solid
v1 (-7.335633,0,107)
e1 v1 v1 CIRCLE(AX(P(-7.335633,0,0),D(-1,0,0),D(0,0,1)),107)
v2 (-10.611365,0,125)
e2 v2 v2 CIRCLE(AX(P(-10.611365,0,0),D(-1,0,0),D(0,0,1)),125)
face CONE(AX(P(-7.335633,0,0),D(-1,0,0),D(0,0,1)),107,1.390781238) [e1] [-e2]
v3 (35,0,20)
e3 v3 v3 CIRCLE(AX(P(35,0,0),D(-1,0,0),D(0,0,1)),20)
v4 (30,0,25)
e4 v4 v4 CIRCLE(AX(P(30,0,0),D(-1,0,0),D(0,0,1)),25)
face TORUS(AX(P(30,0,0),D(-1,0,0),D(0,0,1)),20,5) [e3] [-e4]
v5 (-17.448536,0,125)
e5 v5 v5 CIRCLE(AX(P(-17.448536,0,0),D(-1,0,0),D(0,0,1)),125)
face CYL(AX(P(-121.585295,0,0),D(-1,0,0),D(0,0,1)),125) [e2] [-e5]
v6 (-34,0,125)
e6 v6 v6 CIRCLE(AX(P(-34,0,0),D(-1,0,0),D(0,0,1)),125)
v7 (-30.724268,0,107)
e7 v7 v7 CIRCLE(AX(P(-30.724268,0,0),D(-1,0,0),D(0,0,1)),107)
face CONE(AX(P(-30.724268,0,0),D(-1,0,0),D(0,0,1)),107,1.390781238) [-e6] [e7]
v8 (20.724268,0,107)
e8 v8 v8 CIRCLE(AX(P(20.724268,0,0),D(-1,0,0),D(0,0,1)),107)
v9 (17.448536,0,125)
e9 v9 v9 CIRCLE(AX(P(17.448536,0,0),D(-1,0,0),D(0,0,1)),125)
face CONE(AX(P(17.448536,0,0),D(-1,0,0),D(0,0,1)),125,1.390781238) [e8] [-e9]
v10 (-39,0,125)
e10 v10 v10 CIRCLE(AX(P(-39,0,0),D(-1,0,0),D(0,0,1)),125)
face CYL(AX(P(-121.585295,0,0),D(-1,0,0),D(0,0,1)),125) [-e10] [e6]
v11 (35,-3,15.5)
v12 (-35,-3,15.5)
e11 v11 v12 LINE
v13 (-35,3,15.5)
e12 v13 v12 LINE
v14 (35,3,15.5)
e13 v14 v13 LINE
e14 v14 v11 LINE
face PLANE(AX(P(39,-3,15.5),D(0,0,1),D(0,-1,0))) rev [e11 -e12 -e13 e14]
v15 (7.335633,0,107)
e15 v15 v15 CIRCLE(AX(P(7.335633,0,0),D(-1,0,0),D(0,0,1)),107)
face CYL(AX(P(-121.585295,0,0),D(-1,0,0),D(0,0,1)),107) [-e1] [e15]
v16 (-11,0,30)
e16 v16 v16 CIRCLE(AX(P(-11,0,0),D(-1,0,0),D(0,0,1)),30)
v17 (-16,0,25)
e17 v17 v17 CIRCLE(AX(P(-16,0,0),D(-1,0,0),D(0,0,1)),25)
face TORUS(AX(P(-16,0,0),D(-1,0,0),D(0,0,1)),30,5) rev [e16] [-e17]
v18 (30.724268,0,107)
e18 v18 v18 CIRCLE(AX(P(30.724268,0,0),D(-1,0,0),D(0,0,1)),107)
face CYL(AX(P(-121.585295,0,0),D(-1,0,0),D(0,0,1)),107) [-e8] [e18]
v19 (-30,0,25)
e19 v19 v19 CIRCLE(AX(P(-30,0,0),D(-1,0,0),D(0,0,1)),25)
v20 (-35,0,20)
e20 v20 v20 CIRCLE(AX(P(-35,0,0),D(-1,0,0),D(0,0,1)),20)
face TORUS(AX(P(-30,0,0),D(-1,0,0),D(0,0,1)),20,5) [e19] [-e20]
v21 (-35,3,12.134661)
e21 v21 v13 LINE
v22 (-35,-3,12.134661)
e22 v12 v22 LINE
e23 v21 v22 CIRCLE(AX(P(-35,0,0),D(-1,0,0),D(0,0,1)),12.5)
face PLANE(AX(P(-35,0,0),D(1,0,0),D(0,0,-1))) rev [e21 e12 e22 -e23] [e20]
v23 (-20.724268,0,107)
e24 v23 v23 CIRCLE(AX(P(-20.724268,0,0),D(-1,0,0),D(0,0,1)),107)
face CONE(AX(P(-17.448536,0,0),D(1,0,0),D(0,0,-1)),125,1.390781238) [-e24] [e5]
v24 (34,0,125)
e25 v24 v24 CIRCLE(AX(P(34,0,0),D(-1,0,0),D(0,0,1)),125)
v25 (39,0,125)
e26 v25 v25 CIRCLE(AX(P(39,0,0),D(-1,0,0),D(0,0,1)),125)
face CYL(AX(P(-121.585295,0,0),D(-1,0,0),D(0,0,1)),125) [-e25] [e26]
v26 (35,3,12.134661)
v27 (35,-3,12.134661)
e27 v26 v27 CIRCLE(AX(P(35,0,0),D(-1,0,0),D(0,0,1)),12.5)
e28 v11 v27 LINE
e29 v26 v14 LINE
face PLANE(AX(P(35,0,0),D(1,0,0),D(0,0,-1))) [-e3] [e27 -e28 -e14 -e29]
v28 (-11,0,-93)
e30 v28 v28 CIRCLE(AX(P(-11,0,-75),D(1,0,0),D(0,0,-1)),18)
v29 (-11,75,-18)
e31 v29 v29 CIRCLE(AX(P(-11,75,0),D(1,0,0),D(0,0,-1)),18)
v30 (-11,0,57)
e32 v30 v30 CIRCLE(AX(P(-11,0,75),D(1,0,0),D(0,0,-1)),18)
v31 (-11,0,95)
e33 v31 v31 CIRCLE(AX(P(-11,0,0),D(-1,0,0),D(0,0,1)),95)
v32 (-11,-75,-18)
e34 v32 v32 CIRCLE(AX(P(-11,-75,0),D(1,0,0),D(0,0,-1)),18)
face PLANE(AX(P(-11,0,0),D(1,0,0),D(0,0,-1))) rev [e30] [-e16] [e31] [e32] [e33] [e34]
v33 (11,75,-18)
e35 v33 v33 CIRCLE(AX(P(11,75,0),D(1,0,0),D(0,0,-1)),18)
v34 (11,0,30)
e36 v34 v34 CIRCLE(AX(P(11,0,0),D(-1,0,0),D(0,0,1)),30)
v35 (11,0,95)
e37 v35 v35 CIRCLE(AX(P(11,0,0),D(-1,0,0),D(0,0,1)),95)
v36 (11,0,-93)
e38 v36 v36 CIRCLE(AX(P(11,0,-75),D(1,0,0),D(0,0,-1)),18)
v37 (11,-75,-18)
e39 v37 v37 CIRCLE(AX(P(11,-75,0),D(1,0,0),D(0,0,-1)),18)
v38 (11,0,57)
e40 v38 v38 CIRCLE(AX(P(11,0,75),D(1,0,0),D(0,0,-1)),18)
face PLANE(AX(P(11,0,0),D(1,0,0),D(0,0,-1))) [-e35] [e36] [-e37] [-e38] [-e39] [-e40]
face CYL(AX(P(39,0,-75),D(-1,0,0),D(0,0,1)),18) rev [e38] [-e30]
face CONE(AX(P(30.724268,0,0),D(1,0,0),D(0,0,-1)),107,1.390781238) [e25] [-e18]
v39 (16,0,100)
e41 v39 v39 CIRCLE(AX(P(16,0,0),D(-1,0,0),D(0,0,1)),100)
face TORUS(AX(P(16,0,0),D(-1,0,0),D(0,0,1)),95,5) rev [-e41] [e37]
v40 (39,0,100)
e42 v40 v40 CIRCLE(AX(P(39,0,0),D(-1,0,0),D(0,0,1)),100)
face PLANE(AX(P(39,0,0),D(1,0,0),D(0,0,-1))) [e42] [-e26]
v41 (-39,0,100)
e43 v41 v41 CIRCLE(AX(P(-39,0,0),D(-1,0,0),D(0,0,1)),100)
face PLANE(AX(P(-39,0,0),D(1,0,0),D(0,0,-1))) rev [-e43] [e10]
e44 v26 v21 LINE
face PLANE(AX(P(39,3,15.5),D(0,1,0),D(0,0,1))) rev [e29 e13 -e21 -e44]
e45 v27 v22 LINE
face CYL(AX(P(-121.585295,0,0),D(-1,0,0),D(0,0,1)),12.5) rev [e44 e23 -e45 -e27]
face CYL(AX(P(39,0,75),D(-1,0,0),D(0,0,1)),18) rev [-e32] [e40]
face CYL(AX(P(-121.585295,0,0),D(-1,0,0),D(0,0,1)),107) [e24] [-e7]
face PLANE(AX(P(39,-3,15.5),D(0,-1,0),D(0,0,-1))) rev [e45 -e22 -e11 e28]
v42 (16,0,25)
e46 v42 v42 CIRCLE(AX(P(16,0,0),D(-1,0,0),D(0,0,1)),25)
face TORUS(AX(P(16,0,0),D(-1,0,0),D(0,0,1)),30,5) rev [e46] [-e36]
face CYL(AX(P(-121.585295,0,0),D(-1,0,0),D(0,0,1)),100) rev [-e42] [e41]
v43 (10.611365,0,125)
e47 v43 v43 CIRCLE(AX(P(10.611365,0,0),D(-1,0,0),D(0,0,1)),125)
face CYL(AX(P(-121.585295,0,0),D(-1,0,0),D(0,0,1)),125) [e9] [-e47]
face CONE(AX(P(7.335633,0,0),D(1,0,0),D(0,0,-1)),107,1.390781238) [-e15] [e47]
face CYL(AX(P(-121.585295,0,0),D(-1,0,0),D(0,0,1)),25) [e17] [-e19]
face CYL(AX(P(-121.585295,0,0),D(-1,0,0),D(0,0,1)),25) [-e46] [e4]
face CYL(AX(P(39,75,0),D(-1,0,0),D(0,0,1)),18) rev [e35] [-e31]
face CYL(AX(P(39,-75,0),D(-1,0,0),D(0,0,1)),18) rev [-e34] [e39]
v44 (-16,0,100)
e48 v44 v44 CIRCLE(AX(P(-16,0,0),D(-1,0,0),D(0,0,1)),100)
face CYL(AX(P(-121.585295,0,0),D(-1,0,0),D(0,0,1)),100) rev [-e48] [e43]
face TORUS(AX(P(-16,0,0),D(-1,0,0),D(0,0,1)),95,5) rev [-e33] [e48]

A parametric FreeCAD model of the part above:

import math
import FreeCAD as App
import Part
import Sketcher
from FreeCAD import Vector

doc = App.newDocument("Part")
params = doc.addObject("Spreadsheet::Sheet", "Params")
for row, (alias, value) in enumerate([
    ("sketch1_radius", "5 mm"),
    ("sketch1_width", "10 mm"),
    ("sketch1_width2", "5 mm"),
    ("sketch1_width3", "23 mm"),
    ("sketch1_width4", "14 mm"),
    ("revolution_angle", "360 deg"),
    ("sketch2_diameter", "36 mm"),
    ("sketch2_radius", "12.5 mm"),
    ("sketch2_width", "6 mm"),
], start=1):
    params.set(f"A{row}", alias)
    params.set(f"B{row}", "=" + value)
    params.setAlias(f"B{row}", alias)

body = doc.addObject("PartDesign::Body", "Body")

sketch1 = body.newObject("Sketcher::SketchObject", "Sketch")
sketch1.AttachmentSupport = (doc.getObject("XY_Plane"), [""])
sketch1.MapMode = "FlatFace"
sketch1.addGeometry(Part.LineSegment(Vector(-11, 125, 0), Vector(-17, 125, 0)), False)
sketch1.addGeometry(Part.LineSegment(Vector(-17, 125, 0), Vector(-21, 107, 0)), False)
sketch1.addGeometry(Part.LineSegment(Vector(-21, 107, 0), Vector(-31, 107, 0)), False)
sketch1.addGeometry(Part.LineSegment(Vector(-31, 107, 0), Vector(-34, 125, 0)), False)
sketch1.addGeometry(Part.LineSegment(Vector(-34, 125, 0), Vector(-39, 125, 0)), False)
sketch1.addGeometry(Part.LineSegment(Vector(-39, 125, 0), Vector(-39, 100, 0)), False)
sketch1.addGeometry(Part.LineSegment(Vector(-39, 100, 0), Vector(-16, 100, 0)), False)
sketch1.addGeometry(Part.ArcOfCircle(Part.Circle(Vector(-16, 95, 0), Vector(0, 0, 1), 5), math.radians(0), math.radians(90)), False)
sketch1.addGeometry(Part.LineSegment(Vector(-11, 95, 0), Vector(-11, 30, 0)), False)
sketch1.addGeometry(Part.ArcOfCircle(Part.Circle(Vector(-16, 30, 0), Vector(0, 0, 1), 5), math.radians(-90), math.radians(0)), False)
sketch1.addGeometry(Part.LineSegment(Vector(-16, 25, 0), Vector(-30, 25, 0)), False)
sketch1.addGeometry(Part.ArcOfCircle(Part.Circle(Vector(-30, 20, 0), Vector(0, 0, 1), 5), math.radians(90), math.radians(180)), False)
sketch1.addGeometry(Part.LineSegment(Vector(-35, 20, 0), Vector(-35, 12, 0)), False)
sketch1.addGeometry(Part.LineSegment(Vector(-35, 12, 0), Vector(35, 12, 0)), False)
sketch1.addGeometry(Part.LineSegment(Vector(35, 12, 0), Vector(35, 20, 0)), False)
sketch1.addGeometry(Part.ArcOfCircle(Part.Circle(Vector(30, 20, 0), Vector(0, 0, 1), 5), math.radians(0), math.radians(90)), False)
sketch1.addGeometry(Part.LineSegment(Vector(30, 25, 0), Vector(16, 25, 0)), False)
sketch1.addGeometry(Part.ArcOfCircle(Part.Circle(Vector(16, 30, 0), Vector(0, 0, 1), 5), math.radians(180), math.radians(270)), False)
sketch1.addGeometry(Part.LineSegment(Vector(11, 30, 0), Vector(11, 95, 0)), False)
sketch1.addGeometry(Part.ArcOfCircle(Part.Circle(Vector(16, 95, 0), Vector(0, 0, 1), 5), math.radians(90), math.radians(180)), False)
sketch1.addGeometry(Part.LineSegment(Vector(16, 100, 0), Vector(39, 100, 0)), False)
sketch1.addGeometry(Part.LineSegment(Vector(39, 100, 0), Vector(39, 125, 0)), False)
sketch1.addGeometry(Part.LineSegment(Vector(39, 125, 0), Vector(34, 125, 0)), False)
sketch1.addGeometry(Part.LineSegment(Vector(34, 125, 0), Vector(31, 107, 0)), False)
sketch1.addGeometry(Part.LineSegment(Vector(31, 107, 0), Vector(21, 107, 0)), False)
sketch1.addGeometry(Part.LineSegment(Vector(21, 107, 0), Vector(17, 125, 0)), False)
sketch1.addGeometry(Part.LineSegment(Vector(17, 125, 0), Vector(11, 125, 0)), False)
sketch1.addGeometry(Part.LineSegment(Vector(11, 125, 0), Vector(7, 107, 0)), False)
sketch1.addGeometry(Part.LineSegment(Vector(7, 107, 0), Vector(-7, 107, 0)), False)
sketch1.addGeometry(Part.LineSegment(Vector(-7, 107, 0), Vector(-11, 125, 0)), False)
sketch1.addConstraint(Sketcher.Constraint("Coincident", 0, 2, 1, 1))
sketch1.addConstraint(Sketcher.Constraint("Coincident", 1, 2, 2, 1))
sketch1.addConstraint(Sketcher.Constraint("Coincident", 2, 2, 3, 1))
sketch1.addConstraint(Sketcher.Constraint("Coincident", 3, 2, 4, 1))
sketch1.addConstraint(Sketcher.Constraint("Coincident", 4, 2, 5, 1))
sketch1.addConstraint(Sketcher.Constraint("Coincident", 5, 2, 6, 1))
sketch1.addConstraint(Sketcher.Constraint("Tangent", 6, 2, 7, 2))
sketch1.addConstraint(Sketcher.Constraint("Tangent", 7, 1, 8, 1))
sketch1.addConstraint(Sketcher.Constraint("Tangent", 8, 2, 9, 2))
sketch1.addConstraint(Sketcher.Constraint("Tangent", 9, 1, 10, 1))
sketch1.addConstraint(Sketcher.Constraint("Tangent", 10, 2, 11, 1))
sketch1.addConstraint(Sketcher.Constraint("Tangent", 11, 2, 12, 1))
sketch1.addConstraint(Sketcher.Constraint("Coincident", 12, 2, 13, 1))
sketch1.addConstraint(Sketcher.Constraint("Coincident", 13, 2, 14, 1))
sketch1.addConstraint(Sketcher.Constraint("Tangent", 14, 2, 15, 1))
sketch1.addConstraint(Sketcher.Constraint("Tangent", 15, 2, 16, 1))
sketch1.addConstraint(Sketcher.Constraint("Tangent", 16, 2, 17, 2))
sketch1.addConstraint(Sketcher.Constraint("Tangent", 17, 1, 18, 1))
sketch1.addConstraint(Sketcher.Constraint("Tangent", 18, 2, 19, 2))
sketch1.addConstraint(Sketcher.Constraint("Tangent", 19, 1, 20, 1))
sketch1.addConstraint(Sketcher.Constraint("Coincident", 20, 2, 21, 1))
sketch1.addConstraint(Sketcher.Constraint("Coincident", 21, 2, 22, 1))
sketch1.addConstraint(Sketcher.Constraint("Coincident", 22, 2, 23, 1))
sketch1.addConstraint(Sketcher.Constraint("Coincident", 23, 2, 24, 1))
sketch1.addConstraint(Sketcher.Constraint("Coincident", 24, 2, 25, 1))
sketch1.addConstraint(Sketcher.Constraint("Coincident", 25, 2, 26, 1))
sketch1.addConstraint(Sketcher.Constraint("Coincident", 26, 2, 27, 1))
sketch1.addConstraint(Sketcher.Constraint("Coincident", 27, 2, 28, 1))
sketch1.addConstraint(Sketcher.Constraint("Coincident", 28, 2, 29, 1))
sketch1.addConstraint(Sketcher.Constraint("Coincident", 29, 2, 0, 1))
sketch1.addConstraint(Sketcher.Constraint("Horizontal", 0))
sketch1.addConstraint(Sketcher.Constraint("Horizontal", 2))
sketch1.addConstraint(Sketcher.Constraint("Horizontal", 4))
sketch1.addConstraint(Sketcher.Constraint("Vertical", 5))
sketch1.addConstraint(Sketcher.Constraint("Horizontal", 6))
sketch1.addConstraint(Sketcher.Constraint("Vertical", 8))
sketch1.addConstraint(Sketcher.Constraint("Horizontal", 10))
sketch1.addConstraint(Sketcher.Constraint("Vertical", 12))
sketch1.addConstraint(Sketcher.Constraint("Horizontal", 13))
sketch1.addConstraint(Sketcher.Constraint("Vertical", 14))
sketch1.addConstraint(Sketcher.Constraint("Horizontal", 16))
sketch1.addConstraint(Sketcher.Constraint("Vertical", 18))
sketch1.addConstraint(Sketcher.Constraint("Horizontal", 20))
sketch1.addConstraint(Sketcher.Constraint("Vertical", 21))
sketch1.addConstraint(Sketcher.Constraint("Horizontal", 22))
sketch1.addConstraint(Sketcher.Constraint("Horizontal", 24))
sketch1.addConstraint(Sketcher.Constraint("Horizontal", 26))
sketch1.addConstraint(Sketcher.Constraint("Horizontal", 28))
sketch1.addConstraint(Sketcher.Constraint("Equal", 7, 9))
sketch1.addConstraint(Sketcher.Constraint("Equal", 9, 11))
sketch1.addConstraint(Sketcher.Constraint("Equal", 11, 15))
sketch1.addConstraint(Sketcher.Constraint("Equal", 15, 17))
sketch1.addConstraint(Sketcher.Constraint("Equal", 17, 19))
sketch1.addConstraint(Sketcher.Constraint("Symmetric", 11, 3, 15, 3, -2))
sketch1.addConstraint(Sketcher.Constraint("Symmetric", 7, 3, 19, 3, -2))
sketch1.addConstraint(Sketcher.Constraint("Symmetric", 4, 2, 21, 2, -2))
sketch1.addConstraint(Sketcher.Constraint("Symmetric", 2, 2, 23, 2, -2))
sketch1.addConstraint(Sketcher.Constraint("Symmetric", 0, 2, 25, 2, -2))
sketch1.addConstraint(Sketcher.Constraint("Parallel", 1, 23))
sketch1.addConstraint(Sketcher.Constraint("Parallel", 3, 25))
sketch1.addConstraint(Sketcher.Constraint("Parallel", 23, 27))
sketch1.addConstraint(Sketcher.Constraint("Parallel", 25, 29))
sketch1.addConstraint(Sketcher.Constraint("Horizontal", 0, 2, 3, 2))
sketch1.addConstraint(Sketcher.Constraint("Horizontal", 24, 2, 27, 2))
sketch1.addConstraint(Sketcher.Constraint("Equal", 4, 22))
sketch1.addConstraint(Sketcher.Constraint("Equal", 0, 26))
sketch1.addConstraint(Sketcher.Constraint("Radius", 7, 5.0))
sketch1.addConstraint(Sketcher.Constraint("DistanceX", 2, 2, 2, 1, 10.0))
sketch1.addConstraint(Sketcher.Constraint("DistanceX", 4, 2, 4, 1, 5.0))
sketch1.addConstraint(Sketcher.Constraint("DistanceX", 6, 1, 6, 2, 23.0))
sketch1.addConstraint(Sketcher.Constraint("DistanceX", 10, 2, 10, 1, 14.0))
sketch1.addConstraint(Sketcher.Constraint("DistanceX", 13, 1, 13, 2, 70.0))
sketch1.addConstraint(Sketcher.Constraint("DistanceY", 5, 2, 5, 1, 25.0))
sketch1.addConstraint(Sketcher.Constraint("DistanceY", 8, 2, 8, 1, 65.0))
sketch1.addConstraint(Sketcher.Constraint("DistanceY", 12, 2, 12, 1, 7.5))
sketch1.addConstraint(Sketcher.Constraint("DistanceY", -1, 1, 7, 3, 95.0))
sketch1.addConstraint(Sketcher.Constraint("DistanceY", -1, 1, 1, 2, 107.0))
sketch1.addConstraint(Sketcher.Constraint("DistanceX", 0, 2, 0, 1, 6.837171))
sketch1.addConstraint(Sketcher.Constraint("Distance", 1, 18.295639))
sketch1.setExpression("Constraints[66]", "Params.sketch1_radius")
sketch1.setExpression("Constraints[67]", "Params.sketch1_width")
sketch1.setExpression("Constraints[68]", "Params.sketch1_width2")
sketch1.setExpression("Constraints[69]", "Params.sketch1_width3")
sketch1.setExpression("Constraints[70]", "Params.sketch1_width4")
revolution = body.newObject("PartDesign::Revolution", "Revolution")
revolution.Profile = sketch1
revolution.ReferenceAxis = (sketch1, ["H_Axis"])
revolution.setExpression("Angle", "Params.revolution_angle")

sketch2 = body.newObject("Sketcher::SketchObject", "Sketch001")
sketch2.AttachmentSupport = (doc.getObject("YZ_Plane"), [""])
sketch2.MapMode = "FlatFace"
sketch2.AttachmentOffset = App.Placement(Vector(0, 0, -11), App.Rotation())
sketch2.addGeometry(Part.Circle(Vector(75, 0, 0), Vector(0, 0, 1), 18), False)
sketch2.addGeometry(Part.Circle(Vector(0, 75, 0), Vector(0, 0, 1), 18), False)
sketch2.addGeometry(Part.Circle(Vector(-75, 0, 0), Vector(0, 0, 1), 18), False)
sketch2.addGeometry(Part.Circle(Vector(0, -75, 0), Vector(0, 0, 1), 18), False)
sketch2.addGeometry(Part.LineSegment(Vector(-3, 15.5, 0), Vector(3, 15.5, 0)), False)
sketch2.addGeometry(Part.LineSegment(Vector(3, 15.5, 0), Vector(3, 12.1, 0)), False)
sketch2.addGeometry(Part.ArcOfCircle(Part.Circle(Vector(0, 0, 0), Vector(0, 0, 1), 12.5), math.radians(104), math.radians(436)), False)
sketch2.addGeometry(Part.LineSegment(Vector(-3, 12.1, 0), Vector(-3, 15.5, 0)), False)
sketch2.addConstraint(Sketcher.Constraint("Coincident", 4, 2, 5, 1))
sketch2.addConstraint(Sketcher.Constraint("Coincident", 5, 2, 6, 2))
sketch2.addConstraint(Sketcher.Constraint("Coincident", 6, 1, 7, 1))
sketch2.addConstraint(Sketcher.Constraint("Coincident", 7, 2, 4, 1))
sketch2.addConstraint(Sketcher.Constraint("Horizontal", 4))
sketch2.addConstraint(Sketcher.Constraint("Vertical", 5))
sketch2.addConstraint(Sketcher.Constraint("Vertical", 7))
sketch2.addConstraint(Sketcher.Constraint("Coincident", 6, 3, -1, 1))
sketch2.addConstraint(Sketcher.Constraint("Equal", 0, 1))
sketch2.addConstraint(Sketcher.Constraint("Equal", 1, 2))
sketch2.addConstraint(Sketcher.Constraint("Equal", 2, 3))
sketch2.addConstraint(Sketcher.Constraint("Symmetric", 0, 3, 2, 3, -1, 1))
sketch2.addConstraint(Sketcher.Constraint("Symmetric", 1, 3, 3, 3, -1, 1))
sketch2.addConstraint(Sketcher.Constraint("PointOnObject", 0, 3, -1))
sketch2.addConstraint(Sketcher.Constraint("PointOnObject", 1, 3, -2))
sketch2.addConstraint(Sketcher.Constraint("Horizontal", 5, 2, 6, 1))
sketch2.addConstraint(Sketcher.Constraint("Diameter", 0, 36.0))
sketch2.addConstraint(Sketcher.Constraint("Radius", 6, 12.5))
sketch2.addConstraint(Sketcher.Constraint("DistanceX", 4, 1, 4, 2, 6.0))
sketch2.addConstraint(Sketcher.Constraint("DistanceX", -1, 1, 0, 3, 75.0))
sketch2.addConstraint(Sketcher.Constraint("DistanceY", -1, 1, 1, 3, 75.0))
sketch2.addConstraint(Sketcher.Constraint("DistanceY", -1, 1, 4, 2, 15.5))
sketch2.setExpression("Constraints[16]", "Params.sketch2_diameter")
sketch2.setExpression("Constraints[17]", "Params.sketch2_radius")
sketch2.setExpression("Constraints[18]", "Params.sketch2_width")
pocket1 = body.newObject("PartDesign::Pocket", "Pocket")
pocket1.Profile = sketch2
pocket1.Type = "ThroughAll"
pocket1.Midplane = True

doc.recompute()
